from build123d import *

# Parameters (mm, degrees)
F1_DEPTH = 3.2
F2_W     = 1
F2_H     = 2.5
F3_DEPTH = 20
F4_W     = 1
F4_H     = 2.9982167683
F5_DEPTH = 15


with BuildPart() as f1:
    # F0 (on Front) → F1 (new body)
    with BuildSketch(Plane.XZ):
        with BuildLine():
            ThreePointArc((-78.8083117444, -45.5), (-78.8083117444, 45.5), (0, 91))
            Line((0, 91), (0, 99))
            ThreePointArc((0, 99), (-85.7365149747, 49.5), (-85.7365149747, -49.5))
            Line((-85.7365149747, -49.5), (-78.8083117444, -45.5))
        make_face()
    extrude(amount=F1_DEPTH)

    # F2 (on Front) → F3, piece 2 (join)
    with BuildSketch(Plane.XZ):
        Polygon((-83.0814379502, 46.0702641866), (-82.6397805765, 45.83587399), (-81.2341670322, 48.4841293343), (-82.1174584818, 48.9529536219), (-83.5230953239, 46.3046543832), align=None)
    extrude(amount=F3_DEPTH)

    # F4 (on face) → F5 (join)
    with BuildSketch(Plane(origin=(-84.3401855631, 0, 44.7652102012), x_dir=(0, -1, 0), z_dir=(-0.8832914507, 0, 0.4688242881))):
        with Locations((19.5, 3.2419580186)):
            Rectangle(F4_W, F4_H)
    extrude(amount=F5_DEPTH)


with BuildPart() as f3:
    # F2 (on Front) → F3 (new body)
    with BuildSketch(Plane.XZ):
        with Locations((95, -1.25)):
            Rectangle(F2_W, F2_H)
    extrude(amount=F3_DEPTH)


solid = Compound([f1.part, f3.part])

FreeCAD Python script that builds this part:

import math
import FreeCAD as App
import Part
import Sketcher
from FreeCAD import Vector
Q = App.Units.Quantity


def add_polygon(sketch, points):
    """Adds a closed chain of lines whose ends are joined by coincident constraints."""
    first, n = sketch.GeometryCount, len(points)
    for a, b in zip(points, points[1:] + points[:1]):
        sketch.addGeometry(Part.LineSegment(App.Vector(*a, 0), App.Vector(*b, 0)), False)
    for i in range(n):
        sketch.addConstraint(Sketcher.Constraint("Coincident", first + i, 2, first + (i + 1) % n, 1))

doc = App.newDocument("Part")
body = doc.addObject("PartDesign::Body", "Body")

sketch1 = body.newObject("Sketcher::SketchObject", "Sketch")
sketch1.AttachmentSupport = (doc.getObject("XZ_Plane"), [""])
sketch1.MapMode = "FlatFace"
sketch1.addGeometry(Part.ArcOfCircle(Part.Circle(Vector(0, 0, 0), Vector(0, 0, 1), 91), math.radians(90), math.radians(210)), False)
sketch1.addGeometry(Part.LineSegment(Vector(0, 91, 0), Vector(0, 99, 0)), False)
sketch1.addGeometry(Part.ArcOfCircle(Part.Circle(Vector(0, 0, 0), Vector(0, 0, 1), 99), math.radians(90), math.radians(210)), False)
sketch1.addGeometry(Part.LineSegment(Vector(-86, -50, 0), Vector(-79, -46, 0)), False)
sketch1.addConstraint(Sketcher.Constraint("Coincident", 0, 1, 1, 1))
sketch1.addConstraint(Sketcher.Constraint("Coincident", 1, 2, 2, 1))
sketch1.addConstraint(Sketcher.Constraint("Coincident", 2, 2, 3, 1))
sketch1.addConstraint(Sketcher.Constraint("Coincident", 3, 2, 0, 2))
sketch1.addConstraint(Sketcher.Constraint("Vertical", 1))
sketch1.addConstraint(Sketcher.Constraint("Coincident", 0, 3, -1, 1))
sketch1.addConstraint(Sketcher.Constraint("Coincident", 2, 3, -1, 1))
sketch1.addConstraint(Sketcher.Constraint("PointOnObject", 0, 1, -2))
sketch1.addConstraint(Sketcher.Constraint("Radius", 0, 91.0))
sketch1.addConstraint(Sketcher.Constraint("Radius", 2, 99.0))
sketch1.addConstraint(Sketcher.Constraint("Angle", 3, Q("30 deg")))
sketch1.addConstraint(Sketcher.Constraint("DistanceY", 2, 2, -1, 1, 49.5))
pad1 = body.newObject("PartDesign::Pad", "Pad")
pad1.Profile = sketch1
pad1.Length = 3.2

sketch2 = body.newObject("Sketcher::SketchObject", "Sketch001")
sketch2.AttachmentSupport = (doc.getObject("XZ_Plane"), [""])
sketch2.MapMode = "FlatFace"
add_polygon(sketch2, [(-82.6, 45.8), (-81.2, 48.5), (-82.1, 49), (-83.5, 46.3)])
sketch2.addConstraint(Sketcher.Constraint("Perpendicular", 0, 1))
sketch2.addConstraint(Sketcher.Constraint("Perpendicular", 1, 2))
sketch2.addConstraint(Sketcher.Constraint("Distance", 1, 1.0))
sketch2.addConstraint(Sketcher.Constraint("DistanceY", 2, 2, 1, 2, 2.648299))
sketch2.addConstraint(Sketcher.Constraint("DistanceY", -1, 1, 0, 2, 48.484129))
sketch2.addConstraint(Sketcher.Constraint("DistanceX", 1, 2, -1, 1, 82.117458))
sketch2.addConstraint(Sketcher.Constraint("DistanceX", 3, 2, -1, 1, 82.639781))
sketch2.addConstraint(Sketcher.Constraint("DistanceX", 1, 2, 0, 2, 0.883291))
pad2 = body.newObject("PartDesign::Pad", "Pad001")
pad2.Profile = sketch2
pad2.Length = 20

sketch3 = body.newObject("Sketcher::SketchObject", "Sketch002")
sketch3.Placement = App.Placement(Vector(-84.340186, 0, 44.76521), App.Rotation(Vector(0, -1, 0), Vector(0.468824288, 0, 0.883291451), Vector(-0.883291451, 0, 0.468824288), "ZXY"))
add_polygon(sketch3, [(19, 4.7), (19, 1.7), (20, 1.7), (20, 4.7)])
sketch3.addConstraint(Sketcher.Constraint("Vertical", 0))
sketch3.addConstraint(Sketcher.Constraint("Horizontal", 1))
sketch3.addConstraint(Sketcher.Constraint("Vertical", 2))
sketch3.addConstraint(Sketcher.Constraint("Horizontal", 3))
sketch3.addConstraint(Sketcher.Constraint("DistanceX", 1, 1, 1, 2, 1.0))
sketch3.addConstraint(Sketcher.Constraint("DistanceX", -1, 1, 0, 2, 19.0))
sketch3.addConstraint(Sketcher.Constraint("DistanceY", 0, 2, 0, 1, 2.998217))
sketch3.addConstraint(Sketcher.Constraint("DistanceY", -1, 1, 0, 2, 1.74285))
pad3 = body.newObject("PartDesign::Pad", "Pad002")
pad3.Profile = sketch3
pad3.Length = 15
body2 = doc.addObject("PartDesign::Body", "Body001")

sketch4 = body2.newObject("Sketcher::SketchObject", "Sketch003")
sketch4.AttachmentSupport = (doc.getObject("XZ_Plane001"), [""])
sketch4.MapMode = "FlatFace"
add_polygon(sketch4, [(94.5, 0), (94.5, -2.5), (95.5, -2.5), (95.5, 0)])
sketch4.addConstraint(Sketcher.Constraint("Vertical", 0))
sketch4.addConstraint(Sketcher.Constraint("Horizontal", 1))
sketch4.addConstraint(Sketcher.Constraint("Vertical", 2))
sketch4.addConstraint(Sketcher.Constraint("Horizontal", 3))
sketch4.addConstraint(Sketcher.Constraint("PointOnObject", 2, 2, -1))
sketch4.addConstraint(Sketcher.Constraint("DistanceX", 1, 1, 1, 2, 1.0))
sketch4.addConstraint(Sketcher.Constraint("DistanceY", 0, 2, 0, 1, 2.5))
sketch4.addConstraint(Sketcher.Constraint("DistanceX", -1, 1, 0, 2, 94.5))
pad4 = body2.newObject("PartDesign::Pad", "Pad003")
pad4.Profile = sketch4
pad4.Length = 20

doc.recompute()
